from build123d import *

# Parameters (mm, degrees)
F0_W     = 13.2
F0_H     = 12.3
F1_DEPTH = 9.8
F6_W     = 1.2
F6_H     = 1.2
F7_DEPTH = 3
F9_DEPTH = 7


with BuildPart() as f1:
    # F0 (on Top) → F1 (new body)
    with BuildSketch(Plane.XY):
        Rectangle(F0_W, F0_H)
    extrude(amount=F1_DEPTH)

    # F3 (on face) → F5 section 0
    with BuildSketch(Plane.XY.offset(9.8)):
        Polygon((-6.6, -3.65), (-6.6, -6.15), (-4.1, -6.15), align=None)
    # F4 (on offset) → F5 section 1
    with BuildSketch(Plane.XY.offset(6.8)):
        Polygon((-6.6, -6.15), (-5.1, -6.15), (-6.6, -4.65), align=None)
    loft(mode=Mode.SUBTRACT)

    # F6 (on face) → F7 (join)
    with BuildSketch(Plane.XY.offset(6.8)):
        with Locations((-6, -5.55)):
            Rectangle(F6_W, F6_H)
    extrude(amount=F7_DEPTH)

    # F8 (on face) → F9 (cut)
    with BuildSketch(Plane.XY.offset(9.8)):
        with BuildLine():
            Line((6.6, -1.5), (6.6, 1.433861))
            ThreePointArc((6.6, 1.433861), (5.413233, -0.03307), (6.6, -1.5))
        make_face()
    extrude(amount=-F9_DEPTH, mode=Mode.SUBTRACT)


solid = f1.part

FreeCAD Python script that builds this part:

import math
import FreeCAD as App
import Part
import Sketcher
from FreeCAD import Vector

doc = App.newDocument("Part")
body = doc.addObject("PartDesign::Body", "Body")

sketch1 = body.newObject("Sketcher::SketchObject", "Sketch")
sketch1.AttachmentSupport = (doc.getObject("XY_Plane"), [""])
sketch1.MapMode = "FlatFace"
sketch1.addGeometry(Part.LineSegment(Vector(-7, 6, 0), Vector(-7, -6, 0)), False)
sketch1.addGeometry(Part.LineSegment(Vector(-7, -6, 0), Vector(7, -6, 0)), False)
sketch1.addGeometry(Part.LineSegment(Vector(7, -6, 0), Vector(7, 6, 0)), False)
sketch1.addGeometry(Part.LineSegment(Vector(7, 6, 0), Vector(-7, 6, 0)), False)
sketch1.addConstraint(Sketcher.Constraint("Coincident", 0, 2, 1, 1))
sketch1.addConstraint(Sketcher.Constraint("Coincident", 1, 2, 2, 1))
sketch1.addConstraint(Sketcher.Constraint("Coincident", 2, 2, 3, 1))
sketch1.addConstraint(Sketcher.Constraint("Coincident", 3, 2, 0, 1))
sketch1.addConstraint(Sketcher.Constraint("Vertical", 0))
sketch1.addConstraint(Sketcher.Constraint("Horizontal", 1))
sketch1.addConstraint(Sketcher.Constraint("Vertical", 2))
sketch1.addConstraint(Sketcher.Constraint("Horizontal", 3))
sketch1.addConstraint(Sketcher.Constraint("Symmetric", 0, 2, 2, 2, -1, 1))
sketch1.addConstraint(Sketcher.Constraint("DistanceX", 1, 1, 1, 2, 13.2))
sketch1.addConstraint(Sketcher.Constraint("DistanceY", 0, 2, 0, 1, 12.3))
pad1 = body.newObject("PartDesign::Pad", "Pad")
pad1.Profile = sketch1
pad1.Length = 9.8

sketch2 = body.newObject("Sketcher::SketchObject", "Sketch001")
sketch2.AttachmentSupport = (doc.getObject("XY_Plane"), [""])
sketch2.MapMode = "FlatFace"
sketch2.AttachmentOffset = App.Placement(Vector(0, 0, 9.8), App.Rotation())
sketch2.addGeometry(Part.LineSegment(Vector(-6.6, -3.6, 0), Vector(-6.6, -6.2, 0)), False)
sketch2.addGeometry(Part.LineSegment(Vector(-6.6, -6.2, 0), Vector(-4.1, -6.2, 0)), False)
sketch2.addGeometry(Part.LineSegment(Vector(-4.1, -6.2, 0), Vector(-6.6, -3.6, 0)), False)
sketch2.addConstraint(Sketcher.Constraint("Coincident", 0, 2, 1, 1))
sketch2.addConstraint(Sketcher.Constraint("Coincident", 1, 2, 2, 1))
sketch2.addConstraint(Sketcher.Constraint("Coincident", 2, 2, 0, 1))
sketch2.addConstraint(Sketcher.Constraint("Vertical", 0))
sketch2.addConstraint(Sketcher.Constraint("Horizontal", 1))
sketch2.addConstraint(Sketcher.Constraint("Equal", 1, 0))
sketch2.addConstraint(Sketcher.Constraint("DistanceX", 1, 1, 1, 2, 2.5))
sketch2.addConstraint(Sketcher.Constraint("DistanceX", 0, 2, -1, 1, 6.6))
sketch2.addConstraint(Sketcher.Constraint("DistanceY", 0, 2, -1, 1, 6.15))

sketch3 = body.newObject("Sketcher::SketchObject", "Sketch002")
sketch3.AttachmentSupport = (doc.getObject("XY_Plane"), [""])
sketch3.MapMode = "FlatFace"
sketch3.AttachmentOffset = App.Placement(Vector(0, 0, 6.8), App.Rotation())
sketch3.addGeometry(Part.LineSegment(Vector(-6.6, -6.2, 0), Vector(-5.1, -6.2, 0)), False)
sketch3.addGeometry(Part.LineSegment(Vector(-5.1, -6.2, 0), Vector(-6.6, -4.7, 0)), False)
sketch3.addGeometry(Part.LineSegment(Vector(-6.6, -4.7, 0), Vector(-6.6, -6.2, 0)), False)
sketch3.addConstraint(Sketcher.Constraint("Coincident", 0, 2, 1, 1))
sketch3.addConstraint(Sketcher.Constraint("Coincident", 1, 2, 2, 1))
sketch3.addConstraint(Sketcher.Constraint("Coincident", 2, 2, 0, 1))
sketch3.addConstraint(Sketcher.Constraint("Horizontal", 0))
sketch3.addConstraint(Sketcher.Constraint("Vertical", 2))
sketch3.addConstraint(Sketcher.Constraint("Equal", 0, 2))
sketch3.addConstraint(Sketcher.Constraint("DistanceX", 0, 1, 0, 2, 1.5))
sketch3.addConstraint(Sketcher.Constraint("DistanceX", 0, 2, -1, 1, 5.1))
sketch3.addConstraint(Sketcher.Constraint("DistanceY", 0, 2, -1, 1, 6.15))

subtractiveloft = body.newObject("PartDesign::SubtractiveLoft", "SubtractiveLoft")
subtractiveloft.Profile = sketch2
subtractiveloft.Sections = [sketch3]

sketch4 = body.newObject("Sketcher::SketchObject", "Sketch003")
sketch4.AttachmentSupport = (doc.getObject("XY_Plane"), [""])
sketch4.MapMode = "FlatFace"
sketch4.AttachmentOffset = App.Placement(Vector(0, 0, 6.8), App.Rotation())
sketch4.addGeometry(Part.LineSegment(Vector(-6.6, -5, 0), Vector(-6.6, -6.2, 0)), False)
sketch4.addGeometry(Part.LineSegment(Vector(-6.6, -6.2, 0), Vector(-5.4, -6.2, 0)), False)
sketch4.addGeometry(Part.LineSegment(Vector(-5.4, -6.2, 0), Vector(-5.4, -5, 0)), False)
sketch4.addGeometry(Part.LineSegment(Vector(-5.4, -5, 0), Vector(-6.6, -5, 0)), False)
sketch4.addConstraint(Sketcher.Constraint("Coincident", 0, 2, 1, 1))
sketch4.addConstraint(Sketcher.Constraint("Coincident", 1, 2, 2, 1))
sketch4.addConstraint(Sketcher.Constraint("Coincident", 2, 2, 3, 1))
sketch4.addConstraint(Sketcher.Constraint("Coincident", 3, 2, 0, 1))
sketch4.addConstraint(Sketcher.Constraint("Vertical", 0))
sketch4.addConstraint(Sketcher.Constraint("Horizontal", 1))
sketch4.addConstraint(Sketcher.Constraint("Vertical", 2))
sketch4.addConstraint(Sketcher.Constraint("Horizontal", 3))
sketch4.addConstraint(Sketcher.Constraint("Equal", 3, 0))
sketch4.addConstraint(Sketcher.Constraint("DistanceX", 1, 1, 1, 2, 1.2))
sketch4.addConstraint(Sketcher.Constraint("DistanceX", 0, 2, -1, 1, 6.6))
sketch4.addConstraint(Sketcher.Constraint("DistanceY", 0, 2, -1, 1, 6.15))
pad2 = body.newObject("PartDesign::Pad", "Pad001")
pad2.Profile = sketch4
pad2.Length = 3

sketch5 = body.newObject("Sketcher::SketchObject", "Sketch004")
sketch5.AttachmentSupport = (doc.getObject("XY_Plane"), [""])
sketch5.MapMode = "FlatFace"
sketch5.AttachmentOffset = App.Placement(Vector(0, 0, 9.8), App.Rotation())
sketch5.addGeometry(Part.LineSegment(Vector(6.6, -1.5, 0), Vector(6.6, 1.4, 0)), False)
sketch5.addGeometry(Part.ArcOfCircle(Part.Circle(Vector(6.9, 0, 0), Vector(0, 0, 1), 1.5), math.radians(102), math.radians(258)), False)
sketch5.addConstraint(Sketcher.Constraint("Coincident", 0, 1, 1, 2))
sketch5.addConstraint(Sketcher.Constraint("Coincident", 1, 1, 0, 2))
sketch5.addConstraint(Sketcher.Constraint("Vertical", 0))
sketch5.addConstraint(Sketcher.Constraint("Radius", 1, 1.5))
sketch5.addConstraint(Sketcher.Constraint("DistanceX", -1, 1, 0, 1, 6.6))
sketch5.addConstraint(Sketcher.Constraint("DistanceY", 0, 1, -1, 1, 1.5))
sketch5.addConstraint(Sketcher.Constraint("DistanceY", 0, 1, 0, 2, 2.933861))
pocket1 = body.newObject("PartDesign::Pocket", "Pocket")
pocket1.Profile = sketch5
pocket1.Length = 7

doc.recompute()
